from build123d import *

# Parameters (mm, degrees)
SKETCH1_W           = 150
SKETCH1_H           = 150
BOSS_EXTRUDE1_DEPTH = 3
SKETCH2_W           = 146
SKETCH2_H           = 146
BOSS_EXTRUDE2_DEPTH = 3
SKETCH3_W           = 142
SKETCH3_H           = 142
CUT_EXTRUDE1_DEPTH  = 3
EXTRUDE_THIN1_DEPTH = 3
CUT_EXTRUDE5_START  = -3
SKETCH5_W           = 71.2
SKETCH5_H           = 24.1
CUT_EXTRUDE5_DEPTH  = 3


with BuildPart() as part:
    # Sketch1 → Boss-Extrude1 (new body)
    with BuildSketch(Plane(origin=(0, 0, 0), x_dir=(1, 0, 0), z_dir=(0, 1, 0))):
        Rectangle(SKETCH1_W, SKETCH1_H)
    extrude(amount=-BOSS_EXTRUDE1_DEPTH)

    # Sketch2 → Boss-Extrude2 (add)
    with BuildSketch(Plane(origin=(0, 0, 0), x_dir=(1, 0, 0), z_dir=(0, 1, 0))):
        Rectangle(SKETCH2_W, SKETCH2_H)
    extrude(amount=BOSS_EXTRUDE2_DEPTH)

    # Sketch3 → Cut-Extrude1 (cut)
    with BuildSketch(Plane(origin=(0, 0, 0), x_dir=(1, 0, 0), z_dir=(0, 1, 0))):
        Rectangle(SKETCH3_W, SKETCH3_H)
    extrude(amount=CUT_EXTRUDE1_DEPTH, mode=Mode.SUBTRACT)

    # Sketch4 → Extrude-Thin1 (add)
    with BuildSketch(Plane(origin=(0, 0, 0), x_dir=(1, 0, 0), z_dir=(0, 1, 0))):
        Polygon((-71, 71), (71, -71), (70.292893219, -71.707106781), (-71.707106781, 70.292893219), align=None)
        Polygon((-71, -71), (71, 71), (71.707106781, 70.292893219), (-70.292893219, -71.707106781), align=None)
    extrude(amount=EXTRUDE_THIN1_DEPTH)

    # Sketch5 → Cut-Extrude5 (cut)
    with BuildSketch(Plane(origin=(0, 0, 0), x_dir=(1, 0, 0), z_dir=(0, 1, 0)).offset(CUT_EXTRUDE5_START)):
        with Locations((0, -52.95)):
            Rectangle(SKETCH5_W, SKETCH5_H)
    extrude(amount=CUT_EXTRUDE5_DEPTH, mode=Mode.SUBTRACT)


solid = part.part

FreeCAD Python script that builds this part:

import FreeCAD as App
import Part
import Sketcher
Q = App.Units.Quantity

doc = App.newDocument("Part")
body = doc.addObject("PartDesign::Body", "Body")

sketch1 = doc.addObject("Sketcher::SketchObject", "Sketch")
body.addObject(sketch1)
sketch1.AttachmentSupport = (doc.XZ_Plane, [""])
sketch1.MapMode = "FlatFace"
sketch1.addGeometry([
    Part.LineSegment(App.Vector(-75, -75, 0), App.Vector(-75, 75, 0)),
    Part.LineSegment(App.Vector(-75, 75, 0), App.Vector(75, 75, 0)),
    Part.LineSegment(App.Vector(75, 75, 0), App.Vector(75, -75, 0)),
    Part.LineSegment(App.Vector(75, -75, 0), App.Vector(-75, -75, 0)),
], False)
sketch1.addConstraint([
    Sketcher.Constraint("Coincident", 0, 2, 1, 1),
    Sketcher.Constraint("Coincident", 1, 2, 2, 1),
    Sketcher.Constraint("Coincident", 2, 2, 3, 1),
    Sketcher.Constraint("Coincident", 3, 2, 0, 1),
    Sketcher.Constraint("Vertical", 0),
    Sketcher.Constraint("Horizontal", 1),
    Sketcher.Constraint("Vertical", 2),
    Sketcher.Constraint("Horizontal", 3),
    Sketcher.Constraint("Symmetric", 0, 2, 2, 2, -1, 1),
    Sketcher.Constraint("Equal", 3, 0),
    Sketcher.Constraint("DistanceX", 1, 1, 1, 2, Q("150 mm")),
])
pad1 = doc.addObject("PartDesign::Pad", "Pad")
body.addObject(pad1)
pad1.Profile = sketch1
pad1.Length = 3

sketch2 = doc.addObject("Sketcher::SketchObject", "Sketch001")
body.addObject(sketch2)
sketch2.AttachmentSupport = (doc.XZ_Plane, [""])
sketch2.MapMode = "FlatFace"
sketch2.addGeometry([
    Part.LineSegment(App.Vector(-73, -73, 0), App.Vector(-73, 73, 0)),
    Part.LineSegment(App.Vector(-73, 73, 0), App.Vector(73, 73, 0)),
    Part.LineSegment(App.Vector(73, 73, 0), App.Vector(73, -73, 0)),
    Part.LineSegment(App.Vector(73, -73, 0), App.Vector(-73, -73, 0)),
], False)
sketch2.addConstraint([
    Sketcher.Constraint("Coincident", 0, 2, 1, 1),
    Sketcher.Constraint("Coincident", 1, 2, 2, 1),
    Sketcher.Constraint("Coincident", 2, 2, 3, 1),
    Sketcher.Constraint("Coincident", 3, 2, 0, 1),
    Sketcher.Constraint("Vertical", 0),
    Sketcher.Constraint("Horizontal", 1),
    Sketcher.Constraint("Vertical", 2),
    Sketcher.Constraint("Horizontal", 3),
    Sketcher.Constraint("Symmetric", 0, 2, 2, 2, -1, 1),
    Sketcher.Constraint("Equal", 3, 0),
    Sketcher.Constraint("DistanceX", 1, 1, 1, 2, Q("146 mm")),
])
pad2 = doc.addObject("PartDesign::Pad", "Pad001")
body.addObject(pad2)
pad2.Profile = sketch2
pad2.Length = 3
pad2.Reversed = True

sketch3 = doc.addObject("Sketcher::SketchObject", "Sketch002")
body.addObject(sketch3)
sketch3.AttachmentSupport = (doc.XZ_Plane, [""])
sketch3.MapMode = "FlatFace"
sketch3.addGeometry([
    Part.LineSegment(App.Vector(-71, -71, 0), App.Vector(-71, 71, 0)),
    Part.LineSegment(App.Vector(-71, 71, 0), App.Vector(71, 71, 0)),
    Part.LineSegment(App.Vector(71, 71, 0), App.Vector(71, -71, 0)),
    Part.LineSegment(App.Vector(71, -71, 0), App.Vector(-71, -71, 0)),
], False)
sketch3.addConstraint([
    Sketcher.Constraint("Coincident", 0, 2, 1, 1),
    Sketcher.Constraint("Coincident", 1, 2, 2, 1),
    Sketcher.Constraint("Coincident", 2, 2, 3, 1),
    Sketcher.Constraint("Coincident", 3, 2, 0, 1),
    Sketcher.Constraint("Vertical", 0),
    Sketcher.Constraint("Horizontal", 1),
    Sketcher.Constraint("Vertical", 2),
    Sketcher.Constraint("Horizontal", 3),
    Sketcher.Constraint("Symmetric", 0, 2, 2, 2, -1, 1),
    Sketcher.Constraint("Equal", 3, 0),
    Sketcher.Constraint("DistanceX", 1, 1, 1, 2, Q("142 mm")),
])
pocket1 = doc.addObject("PartDesign::Pocket", "Pocket")
body.addObject(pocket1)
pocket1.Profile = sketch3
pocket1.Length = 3

sketch4 = doc.addObject("Sketcher::SketchObject", "Sketch003")
body.addObject(sketch4)
sketch4.AttachmentSupport = (doc.XZ_Plane, [""])
sketch4.MapMode = "FlatFace"
sketch4.addGeometry([
    Part.LineSegment(App.Vector(-71, -71, 0), App.Vector(-71.707107, -70.292893, 0)),
    Part.LineSegment(App.Vector(-71.707107, -70.292893, 0), App.Vector(-0.707107, 0.707107, 0)),
    Part.LineSegment(App.Vector(-0.707107, 0.707107, 0), App.Vector(-71, 71, 0)),
    Part.LineSegment(App.Vector(-71, 71, 0), App.Vector(-70.292893, 71.707107, 0)),
    Part.LineSegment(App.Vector(-70.292893, 71.707107, 0), App.Vector(0, 1.414214, 0)),
    Part.LineSegment(App.Vector(0, 1.414214, 0), App.Vector(70.292893, 71.707107, 0)),
    Part.LineSegment(App.Vector(70.292893, 71.707107, 0), App.Vector(71, 71, 0)),
    Part.LineSegment(App.Vector(71, 71, 0), App.Vector(0.707107, 0.707107, 0)),
    Part.LineSegment(App.Vector(0.707107, 0.707107, 0), App.Vector(71.707107, -70.292893, 0)),
    Part.LineSegment(App.Vector(71.707107, -70.292893, 0), App.Vector(71, -71, 0)),
    Part.LineSegment(App.Vector(71, -71, 0), App.Vector(0, 0, 0)),
    Part.LineSegment(App.Vector(0, 0, 0), App.Vector(-71, -71, 0)),
], False)
sketch4.addConstraint([
    Sketcher.Constraint("Coincident", 0, 2, 1, 1),
    Sketcher.Constraint("Coincident", 1, 2, 2, 1),
    Sketcher.Constraint("Coincident", 2, 2, 3, 1),
    Sketcher.Constraint("Coincident", 3, 2, 4, 1),
    Sketcher.Constraint("Coincident", 4, 2, 5, 1),
    Sketcher.Constraint("Coincident", 5, 2, 6, 1),
    Sketcher.Constraint("Coincident", 6, 2, 7, 1),
    Sketcher.Constraint("Coincident", 7, 2, 8, 1),
    Sketcher.Constraint("Coincident", 8, 2, 9, 1),
    Sketcher.Constraint("Coincident", 9, 2, 10, 1),
    Sketcher.Constraint("Coincident", 10, 2, 11, 1),
    Sketcher.Constraint("Coincident", 11, 2, 0, 1),
    Sketcher.Constraint("Coincident", 10, 2, -1, 1),
    Sketcher.Constraint("Symmetric", 2, 2, 9, 2, -1, 1),
    Sketcher.Constraint("Symmetric", 6, 2, 11, 2, -1, 1),
    Sketcher.Constraint("Symmetric", 3, 2, 5, 2, -2),
    Sketcher.Constraint("Symmetric", 2, 2, 6, 2, -2),
    Sketcher.Constraint("Symmetric", 1, 2, 7, 2, -2),
    Sketcher.Constraint("Symmetric", 0, 2, 8, 2, -2),
    Sketcher.Constraint("PointOnObject", 4, 2, -2),
    Sketcher.Constraint("Perpendicular", 0, 1),
    Sketcher.Constraint("Perpendicular", 1, 2),
    Sketcher.Constraint("Perpendicular", 2, 3),
    Sketcher.Constraint("Perpendicular", 3, 4),
    Sketcher.Constraint("Perpendicular", 4, 5),
    Sketcher.Constraint("Perpendicular", 9, 10),
    Sketcher.Constraint("Equal", 0, 3),
    Sketcher.Constraint("Distance", 0, Q("1 mm")),
    Sketcher.Constraint("DistanceX", 2, 2, -1, 1, Q("71 mm")),
])
pad3 = doc.addObject("PartDesign::Pad", "Pad002")
body.addObject(pad3)
pad3.Profile = sketch4
pad3.Length = 3
pad3.Reversed = True

sketch5 = doc.addObject("Sketcher::SketchObject", "Sketch004")
body.addObject(sketch5)
sketch5.AttachmentSupport = (doc.XZ_Plane, [""])
sketch5.MapMode = "FlatFace"
sketch5.AttachmentOffset = App.Placement(App.Vector(0, 0, 3), App.Rotation())
sketch5.addGeometry([
    Part.LineSegment(App.Vector(-35.6, 40.9, 0), App.Vector(-35.6, 65, 0)),
    Part.LineSegment(App.Vector(-35.6, 65, 0), App.Vector(35.6, 65, 0)),
    Part.LineSegment(App.Vector(35.6, 65, 0), App.Vector(35.6, 40.9, 0)),
    Part.LineSegment(App.Vector(35.6, 40.9, 0), App.Vector(-35.6, 40.9, 0)),
], False)
sketch5.addConstraint([
    Sketcher.Constraint("Coincident", 0, 2, 1, 1),
    Sketcher.Constraint("Coincident", 1, 2, 2, 1),
    Sketcher.Constraint("Coincident", 2, 2, 3, 1),
    Sketcher.Constraint("Coincident", 3, 2, 0, 1),
    Sketcher.Constraint("Vertical", 0),
    Sketcher.Constraint("Horizontal", 1),
    Sketcher.Constraint("Vertical", 2),
    Sketcher.Constraint("Horizontal", 3),
    Sketcher.Constraint("DistanceX", 1, 1, 1, 2, Q("71.2 mm")),
    Sketcher.Constraint("DistanceY", 0, 1, 0, 2, Q("24.1 mm")),
    Sketcher.Constraint("DistanceY", -1, 1, 0, 2, Q("65 mm")),
    Sketcher.Constraint("DistanceX", 0, 2, -1, 1, Q("35.6 mm")),
])
pocket2 = doc.addObject("PartDesign::Pocket", "Pocket001")
body.addObject(pocket2)
pocket2.Profile = sketch5
pocket2.Length = 3

doc.recompute()
